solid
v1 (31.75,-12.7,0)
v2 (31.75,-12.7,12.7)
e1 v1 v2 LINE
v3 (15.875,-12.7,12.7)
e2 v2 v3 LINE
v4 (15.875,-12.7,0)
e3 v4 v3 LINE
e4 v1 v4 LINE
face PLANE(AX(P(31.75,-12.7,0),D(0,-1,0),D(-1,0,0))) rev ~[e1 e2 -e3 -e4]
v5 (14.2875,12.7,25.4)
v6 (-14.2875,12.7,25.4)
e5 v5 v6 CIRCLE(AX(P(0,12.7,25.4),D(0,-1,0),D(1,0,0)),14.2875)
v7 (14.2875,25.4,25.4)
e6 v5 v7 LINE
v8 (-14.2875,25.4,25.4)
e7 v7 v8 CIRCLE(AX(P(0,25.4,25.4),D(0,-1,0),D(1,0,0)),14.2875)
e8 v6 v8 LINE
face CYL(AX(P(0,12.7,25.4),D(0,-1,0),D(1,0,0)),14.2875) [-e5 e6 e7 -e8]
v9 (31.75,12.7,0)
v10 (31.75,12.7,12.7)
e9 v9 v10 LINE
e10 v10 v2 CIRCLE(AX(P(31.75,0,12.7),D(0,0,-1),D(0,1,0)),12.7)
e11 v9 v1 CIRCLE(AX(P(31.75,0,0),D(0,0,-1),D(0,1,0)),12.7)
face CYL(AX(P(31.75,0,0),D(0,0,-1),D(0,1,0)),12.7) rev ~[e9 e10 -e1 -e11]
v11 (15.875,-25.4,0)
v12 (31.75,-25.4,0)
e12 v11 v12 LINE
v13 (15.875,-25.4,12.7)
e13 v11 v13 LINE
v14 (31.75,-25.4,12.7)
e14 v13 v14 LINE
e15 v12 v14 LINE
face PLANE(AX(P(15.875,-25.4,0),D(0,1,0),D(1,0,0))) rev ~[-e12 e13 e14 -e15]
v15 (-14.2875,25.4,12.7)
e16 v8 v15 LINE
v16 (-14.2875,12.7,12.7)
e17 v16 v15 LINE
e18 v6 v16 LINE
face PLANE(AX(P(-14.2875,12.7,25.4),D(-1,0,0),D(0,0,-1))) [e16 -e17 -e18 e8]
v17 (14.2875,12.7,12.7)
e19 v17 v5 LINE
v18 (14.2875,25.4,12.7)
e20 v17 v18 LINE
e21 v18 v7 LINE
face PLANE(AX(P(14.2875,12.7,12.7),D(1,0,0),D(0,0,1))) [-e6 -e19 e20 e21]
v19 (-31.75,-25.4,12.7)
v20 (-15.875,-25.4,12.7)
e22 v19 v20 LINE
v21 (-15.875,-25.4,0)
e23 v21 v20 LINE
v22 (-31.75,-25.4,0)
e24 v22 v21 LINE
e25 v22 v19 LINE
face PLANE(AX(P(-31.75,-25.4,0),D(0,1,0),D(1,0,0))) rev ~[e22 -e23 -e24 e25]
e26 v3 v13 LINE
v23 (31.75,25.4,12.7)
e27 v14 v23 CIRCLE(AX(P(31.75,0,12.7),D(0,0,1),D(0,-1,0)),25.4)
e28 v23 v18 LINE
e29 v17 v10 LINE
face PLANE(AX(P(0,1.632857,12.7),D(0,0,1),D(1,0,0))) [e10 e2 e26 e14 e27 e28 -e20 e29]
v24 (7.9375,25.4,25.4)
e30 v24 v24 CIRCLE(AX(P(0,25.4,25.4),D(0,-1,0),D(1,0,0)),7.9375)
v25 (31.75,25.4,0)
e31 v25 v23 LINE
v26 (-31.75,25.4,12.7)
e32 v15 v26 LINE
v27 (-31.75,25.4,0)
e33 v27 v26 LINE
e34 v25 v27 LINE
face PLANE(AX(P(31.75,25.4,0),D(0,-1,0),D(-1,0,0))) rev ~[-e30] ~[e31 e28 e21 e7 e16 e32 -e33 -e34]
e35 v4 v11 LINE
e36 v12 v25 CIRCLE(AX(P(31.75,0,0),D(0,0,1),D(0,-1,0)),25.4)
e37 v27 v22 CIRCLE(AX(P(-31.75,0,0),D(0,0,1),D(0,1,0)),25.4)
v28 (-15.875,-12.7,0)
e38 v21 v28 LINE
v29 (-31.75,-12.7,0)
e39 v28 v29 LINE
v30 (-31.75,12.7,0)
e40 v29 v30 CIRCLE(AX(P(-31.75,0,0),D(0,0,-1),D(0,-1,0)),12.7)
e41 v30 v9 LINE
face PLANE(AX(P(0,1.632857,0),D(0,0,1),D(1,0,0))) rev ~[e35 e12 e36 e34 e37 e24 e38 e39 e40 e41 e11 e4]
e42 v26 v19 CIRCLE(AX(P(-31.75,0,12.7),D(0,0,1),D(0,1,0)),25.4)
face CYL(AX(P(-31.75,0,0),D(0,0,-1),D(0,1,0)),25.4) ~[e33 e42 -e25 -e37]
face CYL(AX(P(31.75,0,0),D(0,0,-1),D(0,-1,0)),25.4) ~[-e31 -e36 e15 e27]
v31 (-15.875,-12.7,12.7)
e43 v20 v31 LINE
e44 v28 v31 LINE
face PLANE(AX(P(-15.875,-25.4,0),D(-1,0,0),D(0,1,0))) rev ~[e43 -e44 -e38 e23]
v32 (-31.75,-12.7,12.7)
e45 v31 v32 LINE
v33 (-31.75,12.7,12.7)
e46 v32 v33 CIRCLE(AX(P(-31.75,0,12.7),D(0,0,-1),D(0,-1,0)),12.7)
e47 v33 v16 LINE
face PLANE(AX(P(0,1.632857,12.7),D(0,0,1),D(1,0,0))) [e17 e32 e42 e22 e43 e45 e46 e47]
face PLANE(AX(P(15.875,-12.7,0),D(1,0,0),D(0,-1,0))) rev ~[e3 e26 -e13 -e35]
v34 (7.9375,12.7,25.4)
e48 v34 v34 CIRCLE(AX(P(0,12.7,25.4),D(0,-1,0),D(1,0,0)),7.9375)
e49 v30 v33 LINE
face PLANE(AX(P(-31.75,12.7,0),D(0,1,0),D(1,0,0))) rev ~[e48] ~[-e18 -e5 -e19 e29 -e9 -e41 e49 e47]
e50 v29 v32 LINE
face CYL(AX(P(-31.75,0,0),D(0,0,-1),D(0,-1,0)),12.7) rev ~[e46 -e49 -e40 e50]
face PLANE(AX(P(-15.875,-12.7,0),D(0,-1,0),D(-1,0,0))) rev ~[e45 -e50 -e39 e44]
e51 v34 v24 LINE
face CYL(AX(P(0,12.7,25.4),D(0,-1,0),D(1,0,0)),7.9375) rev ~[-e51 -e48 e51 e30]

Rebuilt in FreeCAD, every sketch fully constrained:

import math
import FreeCAD as App
import Part
import Sketcher

V = App.Vector
Q = App.Units.Quantity

doc = App.newDocument("Part")
params = doc.addObject("Spreadsheet::Sheet", "Params")
for row, (alias, value) in enumerate([
    ("sketch1_radius", "1 in"),
    ("sketch1_radius2", "0.5 in"),
    ("sketch1_width", "2.5 in"),
    ("sketch1_width2", "0.625 in"),
    ("pad1_length", "0.5 in"),
    ("sketch2_diameter", "0.625 in"),
    ("sketch2_height", "0.5 in"),
    ("sketch2_radius", "0.5625 in"),
    ("pad2_length", "0.5 in"),
], start=1):
    params.set(f"A{row}", alias)
    params.set(f"B{row}", "=" + value)
    params.setAlias(f"B{row}", alias)

body = doc.addObject("PartDesign::Body", "Body")

# Sketch on XY plane
sketch1 = body.newObject("Sketcher::SketchObject", "Sketch")
sketch1.AttachmentSupport = (doc.getObject("XY_Plane"), [""])
sketch1.MapMode = "FlatFace"
sketch1.addGeometry([
    Part.ArcOfCircle(Part.Circle(V(31.75, 0, 0), V(0, 0, 1), 12.7), math.radians(-90), math.radians(90)),  # 0
    Part.LineSegment(V(31.75, -12.7, 0), V(15.875, -12.7, 0)),  # 1
    Part.LineSegment(V(15.875, -12.7, 0), V(15.875, -25.4, 0)),  # 2
    Part.LineSegment(V(15.875, -25.4, 0), V(31.75, -25.4, 0)),  # 3
    Part.ArcOfCircle(Part.Circle(V(31.75, 0, 0), V(0, 0, 1), 25.4), math.radians(-90), math.radians(90)),  # 4
    Part.LineSegment(V(31.75, 25.4, 0), V(-31.75, 25.4, 0)),  # 5
    Part.ArcOfCircle(Part.Circle(V(-31.75, 0, 0), V(0, 0, 1), 25.4), math.radians(90), math.radians(270)),  # 6
    Part.LineSegment(V(-31.75, -25.4, 0), V(-15.875, -25.4, 0)),  # 7
    Part.LineSegment(V(-15.875, -25.4, 0), V(-15.875, -12.7, 0)),  # 8
    Part.LineSegment(V(-15.875, -12.7, 0), V(-31.75, -12.7, 0)),  # 9
    Part.ArcOfCircle(Part.Circle(V(-31.75, 0, 0), V(0, 0, 1), 12.7), math.radians(90), math.radians(270)),  # 10
    Part.LineSegment(V(-31.75, 12.7, 0), V(31.75, 12.7, 0)),  # 11
], False)
sketch1.addConstraint([
    Sketcher.Constraint("Tangent", 0, 1, 1, 1),
    Sketcher.Constraint("Coincident", 1, 2, 2, 1),
    Sketcher.Constraint("Coincident", 2, 2, 3, 1),
    Sketcher.Constraint("Tangent", 3, 2, 4, 1),
    Sketcher.Constraint("Tangent", 4, 2, 5, 1),
    Sketcher.Constraint("Tangent", 5, 2, 6, 1),
    Sketcher.Constraint("Tangent", 6, 2, 7, 1),
    Sketcher.Constraint("Coincident", 7, 2, 8, 1),
    Sketcher.Constraint("Coincident", 8, 2, 9, 1),
    Sketcher.Constraint("Tangent", 9, 2, 10, 2),
    Sketcher.Constraint("Tangent", 10, 1, 11, 1),
    Sketcher.Constraint("Tangent", 11, 2, 0, 2),
    Sketcher.Constraint("Horizontal", 1),
    Sketcher.Constraint("Vertical", 2),
    Sketcher.Constraint("Horizontal", 3),
    Sketcher.Constraint("Horizontal", 5),
    Sketcher.Constraint("Horizontal", 7),
    Sketcher.Constraint("Vertical", 8),
    Sketcher.Constraint("Horizontal", 9),
    Sketcher.Constraint("Horizontal", 11),
    Sketcher.Constraint("Coincident", 4, 3, 0, 3),
    Sketcher.Constraint("Coincident", 10, 3, 6, 3),
    Sketcher.Constraint("Equal", 4, 6),
    Sketcher.Constraint("Symmetric", 0, 3, 6, 3, -1, 1),
    Sketcher.Constraint("Equal", 3, 7),
    Sketcher.Constraint("Radius", 4, Q("1 in")),
    Sketcher.Constraint("Radius", 0, Q("0.5 in")),
    Sketcher.Constraint("DistanceX", 5, 2, 5, 1, Q("2.5 in")),
    Sketcher.Constraint("DistanceX", 1, 2, 1, 1, Q("0.625 in")),
])
sketch1.setExpression("Constraints[25]", "Params.sketch1_radius")
sketch1.setExpression("Constraints[26]", "Params.sketch1_radius2")
sketch1.setExpression("Constraints[27]", "Params.sketch1_width")
sketch1.setExpression("Constraints[28]", "Params.sketch1_width2")
pad1 = body.newObject("PartDesign::Pad", "Pad")
pad1.Profile = sketch1
pad1.setExpression("Length", "Params.pad1_length")

# Sketch on XZ plane
sketch2 = body.newObject("Sketcher::SketchObject", "Sketch001")
sketch2.AttachmentSupport = (doc.getObject("XZ_Plane"), [""])
sketch2.MapMode = "FlatFace"
sketch2.AttachmentOffset = App.Placement(V(0, 0, -0.5 * 25.4), App.Rotation())
sketch2.addGeometry([
    Part.LineSegment(V(14.2875, 12.7, 0), V(14.2875, 25.4, 0)),  # 0
    Part.ArcOfCircle(Part.Circle(V(0, 25.4, 0), V(0, 0, 1), 14.2875), math.radians(0), math.radians(180)),  # 1
    Part.LineSegment(V(-14.2875, 25.4, 0), V(-14.2875, 12.7, 0)),  # 2
    Part.LineSegment(V(-14.2875, 12.7, 0), V(14.2875, 12.7, 0)),  # 3
    Part.Circle(V(0, 25.4, 0), V(0, 0, 1), 7.9375),  # 4
], False)
sketch2.addConstraint([
    Sketcher.Constraint("Tangent", 0, 2, 1, 1),
    Sketcher.Constraint("Tangent", 1, 2, 2, 1),
    Sketcher.Constraint("Coincident", 2, 2, 3, 1),
    Sketcher.Constraint("Coincident", 3, 2, 0, 1),
    Sketcher.Constraint("Vertical", 0),
    Sketcher.Constraint("Vertical", 2),
    Sketcher.Constraint("Horizontal", 3),
    Sketcher.Constraint("Coincident", 4, 3, 1, 3),
    Sketcher.Constraint("PointOnObject", 1, 3, -2),
    Sketcher.Constraint("Diameter", 4, Q("0.625 in")),
    Sketcher.Constraint("DistanceY", 0, 1, 0, 2, Q("0.5 in")),
    Sketcher.Constraint("DistanceY", -1, 1, 1, 3, Q("1 in")),
    Sketcher.Constraint("Radius", 1, Q("0.5625 in")),
])
sketch2.setExpression("Constraints[9]", "Params.sketch2_diameter")
sketch2.setExpression("Constraints[10]", "Params.sketch2_height")
sketch2.setExpression("Constraints[12]", "Params.sketch2_radius")
pad2 = body.newObject("PartDesign::Pad", "Pad001")
pad2.Profile = sketch2
pad2.setExpression("Length", "Params.pad2_length")
pad2.Reversed = True

doc.recompute()
